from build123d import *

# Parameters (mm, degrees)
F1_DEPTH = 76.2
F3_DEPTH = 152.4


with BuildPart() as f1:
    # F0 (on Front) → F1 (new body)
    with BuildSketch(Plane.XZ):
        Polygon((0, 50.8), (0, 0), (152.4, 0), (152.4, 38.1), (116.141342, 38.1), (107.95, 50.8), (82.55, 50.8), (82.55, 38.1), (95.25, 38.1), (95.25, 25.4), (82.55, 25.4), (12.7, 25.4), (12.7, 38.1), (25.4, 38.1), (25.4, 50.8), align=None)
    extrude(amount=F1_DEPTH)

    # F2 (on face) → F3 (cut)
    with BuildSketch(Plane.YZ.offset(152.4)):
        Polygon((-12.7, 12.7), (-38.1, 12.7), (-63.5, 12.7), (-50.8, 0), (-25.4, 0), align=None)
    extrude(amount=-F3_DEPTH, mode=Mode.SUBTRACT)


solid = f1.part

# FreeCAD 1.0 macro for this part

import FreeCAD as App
import Part
import Sketcher
from FreeCAD import Vector
Q = App.Units.Quantity

doc = App.newDocument("Part")
body = doc.addObject("PartDesign::Body", "Body")

# Sketch on XZ plane
sketch1 = body.newObject("Sketcher::SketchObject", "Sketch")
sketch1.AttachmentSupport = (doc.getObject("XZ_Plane"), [""])
sketch1.MapMode = "FlatFace"
sketch1.addGeometry(Part.LineSegment(Vector(0, 51, 0), Vector(0, 0, 0)), False)
sketch1.addGeometry(Part.LineSegment(Vector(0, 0, 0), Vector(152, 0, 0)), False)
sketch1.addGeometry(Part.LineSegment(Vector(152, 0, 0), Vector(152, 38, 0)), False)
sketch1.addGeometry(Part.LineSegment(Vector(152, 38, 0), Vector(116, 38, 0)), False)
sketch1.addGeometry(Part.LineSegment(Vector(116, 38, 0), Vector(108, 51, 0)), False)
sketch1.addGeometry(Part.LineSegment(Vector(108, 51, 0), Vector(83, 51, 0)), False)
sketch1.addGeometry(Part.LineSegment(Vector(83, 51, 0), Vector(83, 38, 0)), False)
sketch1.addGeometry(Part.LineSegment(Vector(83, 38, 0), Vector(95, 38, 0)), False)
sketch1.addGeometry(Part.LineSegment(Vector(95, 38, 0), Vector(95, 25, 0)), False)
sketch1.addGeometry(Part.LineSegment(Vector(95, 25, 0), Vector(13, 25, 0)), False)
sketch1.addGeometry(Part.LineSegment(Vector(13, 25, 0), Vector(13, 38, 0)), False)
sketch1.addGeometry(Part.LineSegment(Vector(13, 38, 0), Vector(25, 38, 0)), False)
sketch1.addGeometry(Part.LineSegment(Vector(25, 38, 0), Vector(25, 51, 0)), False)
sketch1.addGeometry(Part.LineSegment(Vector(25, 51, 0), Vector(0, 51, 0)), False)
sketch1.addConstraint(Sketcher.Constraint("Coincident", 0, 2, 1, 1))
sketch1.addConstraint(Sketcher.Constraint("Coincident", 1, 2, 2, 1))
sketch1.addConstraint(Sketcher.Constraint("Coincident", 2, 2, 3, 1))
sketch1.addConstraint(Sketcher.Constraint("Coincident", 3, 2, 4, 1))
sketch1.addConstraint(Sketcher.Constraint("Coincident", 4, 2, 5, 1))
sketch1.addConstraint(Sketcher.Constraint("Coincident", 5, 2, 6, 1))
sketch1.addConstraint(Sketcher.Constraint("Coincident", 6, 2, 7, 1))
sketch1.addConstraint(Sketcher.Constraint("Coincident", 7, 2, 8, 1))
sketch1.addConstraint(Sketcher.Constraint("Coincident", 8, 2, 9, 1))
sketch1.addConstraint(Sketcher.Constraint("Coincident", 9, 2, 10, 1))
sketch1.addConstraint(Sketcher.Constraint("Coincident", 10, 2, 11, 1))
sketch1.addConstraint(Sketcher.Constraint("Coincident", 11, 2, 12, 1))
sketch1.addConstraint(Sketcher.Constraint("Coincident", 12, 2, 13, 1))
sketch1.addConstraint(Sketcher.Constraint("Coincident", 13, 2, 0, 1))
sketch1.addConstraint(Sketcher.Constraint("Vertical", 0))
sketch1.addConstraint(Sketcher.Constraint("Horizontal", 1))
sketch1.addConstraint(Sketcher.Constraint("Vertical", 2))
sketch1.addConstraint(Sketcher.Constraint("Horizontal", 3))
sketch1.addConstraint(Sketcher.Constraint("Horizontal", 5))
sketch1.addConstraint(Sketcher.Constraint("Vertical", 6))
sketch1.addConstraint(Sketcher.Constraint("Horizontal", 7))
sketch1.addConstraint(Sketcher.Constraint("Vertical", 8))
sketch1.addConstraint(Sketcher.Constraint("Horizontal", 9))
sketch1.addConstraint(Sketcher.Constraint("Vertical", 10))
sketch1.addConstraint(Sketcher.Constraint("Horizontal", 11))
sketch1.addConstraint(Sketcher.Constraint("Vertical", 12))
sketch1.addConstraint(Sketcher.Constraint("Horizontal", 13))
sketch1.addConstraint(Sketcher.Constraint("Coincident", 0, 2, -1, 1))
sketch1.addConstraint(Sketcher.Constraint("Horizontal", 3, 2, 6, 2))
sketch1.addConstraint(Sketcher.Constraint("Horizontal", 7, 2, 10, 2))
sketch1.addConstraint(Sketcher.Constraint("Horizontal", 5, 2, 12, 2))
sketch1.addConstraint(Sketcher.Constraint("Equal", 7, 11))
sketch1.addConstraint(Sketcher.Constraint("Equal", 5, 13))
sketch1.addConstraint(Sketcher.Constraint("Equal", 11, 6))
sketch1.addConstraint(Sketcher.Constraint("Equal", 6, 8))
sketch1.addConstraint(Sketcher.Constraint("DistanceX", 1, 1, 1, 2, Q("6 in")))
sketch1.addConstraint(Sketcher.Constraint("DistanceX", 5, 2, 5, 1, Q("1 in")))
sketch1.addConstraint(Sketcher.Constraint("DistanceY", 0, 2, 0, 1, Q("2 in")))
sketch1.addConstraint(Sketcher.Constraint("DistanceX", 7, 1, 7, 2, Q("0.5 in")))
sketch1.addConstraint(Sketcher.Constraint("DistanceX", 9, 2, 9, 1, Q("3.25 in")))
sketch1.addConstraint(Sketcher.Constraint("DistanceX", 3, 2, 3, 1, Q("36.258658 mm")))
pad1 = body.newObject("PartDesign::Pad", "Pad")
pad1.Profile = sketch1
pad1.Length = Q("3 in")

# Sketch on YZ plane
sketch2 = body.newObject("Sketcher::SketchObject", "Sketch001")
sketch2.AttachmentSupport = (doc.getObject("YZ_Plane"), [""])
sketch2.MapMode = "FlatFace"
sketch2.AttachmentOffset = App.Placement(Vector(0, 0, 6 * 25.4), App.Rotation())
sketch2.addGeometry(Part.LineSegment(Vector(-13, 13, 0), Vector(-64, 13, 0)), False)
sketch2.addGeometry(Part.LineSegment(Vector(-64, 13, 0), Vector(-51, 0, 0)), False)
sketch2.addGeometry(Part.LineSegment(Vector(-51, 0, 0), Vector(-25, 0, 0)), False)
sketch2.addGeometry(Part.LineSegment(Vector(-25, 0, 0), Vector(-13, 13, 0)), False)
sketch2.addConstraint(Sketcher.Constraint("Coincident", 0, 2, 1, 1))
sketch2.addConstraint(Sketcher.Constraint("Coincident", 1, 2, 2, 1))
sketch2.addConstraint(Sketcher.Constraint("Coincident", 2, 2, 3, 1))
sketch2.addConstraint(Sketcher.Constraint("Coincident", 3, 2, 0, 1))
sketch2.addConstraint(Sketcher.Constraint("Horizontal", 0))
sketch2.addConstraint(Sketcher.Constraint("Horizontal", 2))
sketch2.addConstraint(Sketcher.Constraint("PointOnObject", 1, 2, -1))
sketch2.addConstraint(Sketcher.Constraint("Perpendicular", 1, 3))
sketch2.addConstraint(Sketcher.Constraint("Equal", 1, 3))
sketch2.addConstraint(Sketcher.Constraint("DistanceX", 0, 2, 0, 1, Q("2 in")))
sketch2.addConstraint(Sketcher.Constraint("DistanceX", 2, 1, 2, 2, Q("1 in")))
sketch2.addConstraint(Sketcher.Constraint("DistanceX", 1, 2, -1, 1, Q("2 in")))
pocket1 = body.newObject("PartDesign::Pocket", "Pocket")
pocket1.Profile = sketch2
pocket1.Length = Q("6 in")

doc.recompute()
